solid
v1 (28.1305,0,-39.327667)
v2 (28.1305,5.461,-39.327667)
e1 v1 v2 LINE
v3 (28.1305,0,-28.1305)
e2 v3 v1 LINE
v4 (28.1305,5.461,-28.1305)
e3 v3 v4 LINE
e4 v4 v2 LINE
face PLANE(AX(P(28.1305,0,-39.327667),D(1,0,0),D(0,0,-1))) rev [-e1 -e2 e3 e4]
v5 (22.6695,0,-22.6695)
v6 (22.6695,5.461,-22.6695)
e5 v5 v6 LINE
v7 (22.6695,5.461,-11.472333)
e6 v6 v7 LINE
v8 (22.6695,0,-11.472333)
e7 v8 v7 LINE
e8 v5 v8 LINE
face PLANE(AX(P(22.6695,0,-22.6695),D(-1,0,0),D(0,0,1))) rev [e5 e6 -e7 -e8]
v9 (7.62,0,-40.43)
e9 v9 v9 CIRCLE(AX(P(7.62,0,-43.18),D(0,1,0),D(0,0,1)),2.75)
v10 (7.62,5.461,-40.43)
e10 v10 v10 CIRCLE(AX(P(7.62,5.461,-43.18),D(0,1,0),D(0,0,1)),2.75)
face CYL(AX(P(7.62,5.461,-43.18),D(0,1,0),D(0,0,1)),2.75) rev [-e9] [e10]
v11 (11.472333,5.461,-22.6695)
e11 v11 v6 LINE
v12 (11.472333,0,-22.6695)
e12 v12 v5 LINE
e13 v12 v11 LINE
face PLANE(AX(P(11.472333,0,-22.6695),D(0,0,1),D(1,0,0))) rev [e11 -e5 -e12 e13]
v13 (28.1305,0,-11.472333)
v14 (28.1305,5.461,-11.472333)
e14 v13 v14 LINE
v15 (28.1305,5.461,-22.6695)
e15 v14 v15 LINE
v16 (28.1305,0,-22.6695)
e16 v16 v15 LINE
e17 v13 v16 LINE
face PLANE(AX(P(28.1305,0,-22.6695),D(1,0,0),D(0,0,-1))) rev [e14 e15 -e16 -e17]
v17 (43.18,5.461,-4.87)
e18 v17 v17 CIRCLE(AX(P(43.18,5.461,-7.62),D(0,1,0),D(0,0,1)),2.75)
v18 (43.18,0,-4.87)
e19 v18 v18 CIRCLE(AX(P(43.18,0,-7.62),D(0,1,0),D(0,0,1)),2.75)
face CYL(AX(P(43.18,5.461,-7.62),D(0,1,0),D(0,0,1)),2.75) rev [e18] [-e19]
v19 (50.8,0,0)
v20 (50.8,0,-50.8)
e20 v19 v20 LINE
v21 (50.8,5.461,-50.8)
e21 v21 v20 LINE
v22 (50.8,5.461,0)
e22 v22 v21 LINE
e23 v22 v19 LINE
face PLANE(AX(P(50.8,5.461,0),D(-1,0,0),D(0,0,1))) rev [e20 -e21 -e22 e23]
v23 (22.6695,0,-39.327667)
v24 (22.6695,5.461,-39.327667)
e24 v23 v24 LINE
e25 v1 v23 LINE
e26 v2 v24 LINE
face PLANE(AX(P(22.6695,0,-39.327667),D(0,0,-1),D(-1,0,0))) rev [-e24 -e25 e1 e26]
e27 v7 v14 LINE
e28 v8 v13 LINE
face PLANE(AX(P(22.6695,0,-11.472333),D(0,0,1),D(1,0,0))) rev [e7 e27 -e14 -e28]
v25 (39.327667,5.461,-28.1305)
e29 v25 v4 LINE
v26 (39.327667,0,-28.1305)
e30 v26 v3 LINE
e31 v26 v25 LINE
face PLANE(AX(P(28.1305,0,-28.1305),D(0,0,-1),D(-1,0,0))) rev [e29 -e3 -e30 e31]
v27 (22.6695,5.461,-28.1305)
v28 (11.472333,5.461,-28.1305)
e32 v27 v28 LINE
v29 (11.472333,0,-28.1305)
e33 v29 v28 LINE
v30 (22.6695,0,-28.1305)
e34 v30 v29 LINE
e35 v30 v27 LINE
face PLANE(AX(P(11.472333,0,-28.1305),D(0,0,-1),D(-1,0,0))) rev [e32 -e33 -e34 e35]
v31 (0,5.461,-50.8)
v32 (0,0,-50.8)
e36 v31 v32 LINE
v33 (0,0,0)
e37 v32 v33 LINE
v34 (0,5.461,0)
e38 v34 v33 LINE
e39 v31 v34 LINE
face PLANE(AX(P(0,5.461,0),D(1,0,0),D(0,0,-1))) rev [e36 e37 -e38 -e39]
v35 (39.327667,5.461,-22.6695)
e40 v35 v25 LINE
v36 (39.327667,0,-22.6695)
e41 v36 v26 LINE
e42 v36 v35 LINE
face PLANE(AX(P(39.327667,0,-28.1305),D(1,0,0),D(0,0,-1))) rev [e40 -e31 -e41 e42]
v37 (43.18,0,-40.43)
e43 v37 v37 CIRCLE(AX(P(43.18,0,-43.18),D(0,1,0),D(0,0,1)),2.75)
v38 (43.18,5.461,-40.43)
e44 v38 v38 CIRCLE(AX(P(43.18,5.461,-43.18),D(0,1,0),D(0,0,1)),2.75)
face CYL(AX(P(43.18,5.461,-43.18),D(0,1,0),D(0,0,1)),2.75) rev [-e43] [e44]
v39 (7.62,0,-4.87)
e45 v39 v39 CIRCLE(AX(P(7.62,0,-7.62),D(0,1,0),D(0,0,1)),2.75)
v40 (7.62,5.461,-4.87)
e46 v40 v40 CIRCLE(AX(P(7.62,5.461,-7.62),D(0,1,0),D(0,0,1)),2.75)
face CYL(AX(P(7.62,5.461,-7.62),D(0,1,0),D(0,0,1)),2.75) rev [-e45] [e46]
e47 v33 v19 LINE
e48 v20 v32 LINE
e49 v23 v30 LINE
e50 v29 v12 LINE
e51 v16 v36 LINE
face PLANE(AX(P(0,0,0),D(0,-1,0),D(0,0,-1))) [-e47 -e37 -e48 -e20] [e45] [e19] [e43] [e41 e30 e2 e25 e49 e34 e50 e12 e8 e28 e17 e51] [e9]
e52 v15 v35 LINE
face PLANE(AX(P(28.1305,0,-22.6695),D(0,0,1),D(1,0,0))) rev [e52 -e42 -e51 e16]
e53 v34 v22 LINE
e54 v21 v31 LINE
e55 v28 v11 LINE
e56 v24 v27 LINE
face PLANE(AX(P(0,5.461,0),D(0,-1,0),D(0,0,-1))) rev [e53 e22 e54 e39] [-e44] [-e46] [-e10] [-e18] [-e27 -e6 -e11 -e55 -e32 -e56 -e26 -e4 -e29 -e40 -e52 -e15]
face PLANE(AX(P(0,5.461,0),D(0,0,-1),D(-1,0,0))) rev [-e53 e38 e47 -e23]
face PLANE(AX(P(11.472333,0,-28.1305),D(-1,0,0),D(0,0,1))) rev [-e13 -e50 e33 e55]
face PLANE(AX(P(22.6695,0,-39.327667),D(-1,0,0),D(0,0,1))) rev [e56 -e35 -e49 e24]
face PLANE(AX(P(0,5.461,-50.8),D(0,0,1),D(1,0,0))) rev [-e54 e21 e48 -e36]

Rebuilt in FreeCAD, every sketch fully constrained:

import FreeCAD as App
import Part
import Sketcher
Q = App.Units.Quantity

doc = App.newDocument("Part")
body = doc.addObject("PartDesign::Body", "Body")

sketch1 = body.newObject("Sketcher::SketchObject", "Sketch")
sketch1.AttachmentSupport = (doc.getObject("XZ_Plane"), [""])
sketch1.MapMode = "FlatFace"
sketch1.addGeometry([
    Part.LineSegment(App.Vector(0, -51, 0), App.Vector(0, 0, 0)),
    Part.LineSegment(App.Vector(0, 0, 0), App.Vector(51, 0, 0)),
    Part.LineSegment(App.Vector(51, 0, 0), App.Vector(51, -51, 0)),
    Part.LineSegment(App.Vector(51, -51, 0), App.Vector(0, -51, 0)),
], False)
sketch1.addConstraint([
    Sketcher.Constraint("Coincident", 0, 2, 1, 1),
    Sketcher.Constraint("Coincident", 1, 2, 2, 1),
    Sketcher.Constraint("Coincident", 2, 2, 3, 1),
    Sketcher.Constraint("Coincident", 3, 2, 0, 1),
    Sketcher.Constraint("Vertical", 0),
    Sketcher.Constraint("Horizontal", 1),
    Sketcher.Constraint("Vertical", 2),
    Sketcher.Constraint("Horizontal", 3),
    Sketcher.Constraint("Coincident", 0, 2, -1, 1),
    Sketcher.Constraint("Equal", 3, 0),
    Sketcher.Constraint("DistanceX", 1, 1, 1, 2, Q("2 in")),
])
pad1 = body.newObject("PartDesign::Pad", "Pad")
pad1.Profile = sketch1
pad1.Length = Q("0.215 in")
pad1.Reversed = True

sketch2 = body.newObject("Sketcher::SketchObject", "Sketch001")
sketch2.AttachmentSupport = (doc.getObject("XZ_Plane"), [""])
sketch2.MapMode = "FlatFace"
sketch2.AttachmentOffset = App.Placement(App.Vector(0, 0, -0.215 * 25.4), App.Rotation())
sketch2.addGeometry([
    Part.LineSegment(App.Vector(39, -28, 0), App.Vector(28, -28, 0)),
    Part.LineSegment(App.Vector(28, -28, 0), App.Vector(28, -39, 0)),
    Part.LineSegment(App.Vector(28, -39, 0), App.Vector(23, -39, 0)),
    Part.LineSegment(App.Vector(23, -39, 0), App.Vector(23, -28, 0)),
    Part.LineSegment(App.Vector(23, -28, 0), App.Vector(11, -28, 0)),
    Part.LineSegment(App.Vector(11, -28, 0), App.Vector(11, -23, 0)),
    Part.LineSegment(App.Vector(11, -23, 0), App.Vector(23, -23, 0)),
    Part.LineSegment(App.Vector(23, -23, 0), App.Vector(23, -11, 0)),
    Part.LineSegment(App.Vector(23, -11, 0), App.Vector(28, -11, 0)),
    Part.LineSegment(App.Vector(28, -11, 0), App.Vector(28, -23, 0)),
    Part.LineSegment(App.Vector(28, -23, 0), App.Vector(39, -23, 0)),
    Part.LineSegment(App.Vector(39, -23, 0), App.Vector(39, -28, 0)),
], False)
sketch2.addConstraint([
    Sketcher.Constraint("Coincident", 0, 2, 1, 1),
    Sketcher.Constraint("Coincident", 1, 2, 2, 1),
    Sketcher.Constraint("Coincident", 2, 2, 3, 1),
    Sketcher.Constraint("Coincident", 3, 2, 4, 1),
    Sketcher.Constraint("Coincident", 4, 2, 5, 1),
    Sketcher.Constraint("Coincident", 5, 2, 6, 1),
    Sketcher.Constraint("Coincident", 6, 2, 7, 1),
    Sketcher.Constraint("Coincident", 7, 2, 8, 1),
    Sketcher.Constraint("Coincident", 8, 2, 9, 1),
    Sketcher.Constraint("Coincident", 9, 2, 10, 1),
    Sketcher.Constraint("Coincident", 10, 2, 11, 1),
    Sketcher.Constraint("Coincident", 11, 2, 0, 1),
    Sketcher.Constraint("Horizontal", 0),
    Sketcher.Constraint("Vertical", 1),
    Sketcher.Constraint("Horizontal", 2),
    Sketcher.Constraint("Vertical", 3),
    Sketcher.Constraint("Horizontal", 4),
    Sketcher.Constraint("Vertical", 5),
    Sketcher.Constraint("Horizontal", 6),
    Sketcher.Constraint("Vertical", 7),
    Sketcher.Constraint("Horizontal", 8),
    Sketcher.Constraint("Vertical", 9),
    Sketcher.Constraint("Horizontal", 10),
    Sketcher.Constraint("Vertical", 11),
    Sketcher.Constraint("Horizontal", 0, 2, 3, 2),
    Sketcher.Constraint("Horizontal", 6, 2, 9, 2),
    Sketcher.Constraint("Vertical", 3, 2, 6, 2),
    Sketcher.Constraint("Vertical", 1, 2, 8, 2),
    Sketcher.Constraint("Equal", 0, 4),
    Sketcher.Constraint("Equal", 10, 1),
    Sketcher.Constraint("Equal", 8, 5),
    Sketcher.Constraint("Equal", 3, 7),
    Sketcher.Constraint("DistanceX", 2, 2, 2, 1, Q("0.215 in")),
    Sketcher.Constraint("DistanceX", -1, 1, 0, 2, Q("1.1075 in")),
    Sketcher.Constraint("DistanceY", 0, 2, -1, 1, Q("1.1075 in")),
    Sketcher.Constraint("DistanceX", 0, 2, 0, 1, 11.197167),
])
pocket1 = body.newObject("PartDesign::Pocket", "Pocket")
pocket1.Profile = sketch2
pocket1.Length = Q("0.215 in")
pocket1.Reversed = True

sketch3 = body.newObject("Sketcher::SketchObject", "Sketch002")
sketch3.AttachmentSupport = (doc.getObject("XZ_Plane"), [""])
sketch3.MapMode = "FlatFace"
sketch3.AttachmentOffset = App.Placement(App.Vector(0, 0, -0.215 * 25.4), App.Rotation())
sketch3.addGeometry([
    Part.Circle(App.Vector(7.6, -43.2, 0), App.Vector(0, 0, 1), 2.8),
    Part.Circle(App.Vector(43.2, -43.2, 0), App.Vector(0, 0, 1), 2.8),
    Part.Circle(App.Vector(43.2, -7.6, 0), App.Vector(0, 0, 1), 2.8),
    Part.Circle(App.Vector(7.6, -7.6, 0), App.Vector(0, 0, 1), 2.8),
], False)
sketch3.addConstraint([
    Sketcher.Constraint("Equal", 0, 1),
    Sketcher.Constraint("Equal", 1, 2),
    Sketcher.Constraint("Equal", 2, 3),
    Sketcher.Constraint("Horizontal", 0, 3, 1, 3),
    Sketcher.Constraint("Horizontal", 2, 3, 3, 3),
    Sketcher.Constraint("Vertical", 1, 3, 2, 3),
    Sketcher.Constraint("Vertical", 0, 3, 3, 3),
    Sketcher.Constraint("DistanceX", -1, 1, 0, 3, Q("0.3 in")),
    Sketcher.Constraint("DistanceY", 0, 3, -1, 1, Q("1.7 in")),
    Sketcher.Constraint("DistanceX", -1, 1, 1, 3, Q("1.7 in")),
    Sketcher.Constraint("DistanceY", 2, 3, -1, 1, Q("0.3 in")),
    Sketcher.Constraint("Diameter", 0, 5.5),
])
doc.recompute()
hole = body.newObject("PartDesign::Hole", "Hole")
hole.Profile = sketch3
hole.ThreadType = "None"
hole.Diameter = 5.5
hole.DepthType = "ThroughAll"
hole.Reversed = True

doc.recompute()
